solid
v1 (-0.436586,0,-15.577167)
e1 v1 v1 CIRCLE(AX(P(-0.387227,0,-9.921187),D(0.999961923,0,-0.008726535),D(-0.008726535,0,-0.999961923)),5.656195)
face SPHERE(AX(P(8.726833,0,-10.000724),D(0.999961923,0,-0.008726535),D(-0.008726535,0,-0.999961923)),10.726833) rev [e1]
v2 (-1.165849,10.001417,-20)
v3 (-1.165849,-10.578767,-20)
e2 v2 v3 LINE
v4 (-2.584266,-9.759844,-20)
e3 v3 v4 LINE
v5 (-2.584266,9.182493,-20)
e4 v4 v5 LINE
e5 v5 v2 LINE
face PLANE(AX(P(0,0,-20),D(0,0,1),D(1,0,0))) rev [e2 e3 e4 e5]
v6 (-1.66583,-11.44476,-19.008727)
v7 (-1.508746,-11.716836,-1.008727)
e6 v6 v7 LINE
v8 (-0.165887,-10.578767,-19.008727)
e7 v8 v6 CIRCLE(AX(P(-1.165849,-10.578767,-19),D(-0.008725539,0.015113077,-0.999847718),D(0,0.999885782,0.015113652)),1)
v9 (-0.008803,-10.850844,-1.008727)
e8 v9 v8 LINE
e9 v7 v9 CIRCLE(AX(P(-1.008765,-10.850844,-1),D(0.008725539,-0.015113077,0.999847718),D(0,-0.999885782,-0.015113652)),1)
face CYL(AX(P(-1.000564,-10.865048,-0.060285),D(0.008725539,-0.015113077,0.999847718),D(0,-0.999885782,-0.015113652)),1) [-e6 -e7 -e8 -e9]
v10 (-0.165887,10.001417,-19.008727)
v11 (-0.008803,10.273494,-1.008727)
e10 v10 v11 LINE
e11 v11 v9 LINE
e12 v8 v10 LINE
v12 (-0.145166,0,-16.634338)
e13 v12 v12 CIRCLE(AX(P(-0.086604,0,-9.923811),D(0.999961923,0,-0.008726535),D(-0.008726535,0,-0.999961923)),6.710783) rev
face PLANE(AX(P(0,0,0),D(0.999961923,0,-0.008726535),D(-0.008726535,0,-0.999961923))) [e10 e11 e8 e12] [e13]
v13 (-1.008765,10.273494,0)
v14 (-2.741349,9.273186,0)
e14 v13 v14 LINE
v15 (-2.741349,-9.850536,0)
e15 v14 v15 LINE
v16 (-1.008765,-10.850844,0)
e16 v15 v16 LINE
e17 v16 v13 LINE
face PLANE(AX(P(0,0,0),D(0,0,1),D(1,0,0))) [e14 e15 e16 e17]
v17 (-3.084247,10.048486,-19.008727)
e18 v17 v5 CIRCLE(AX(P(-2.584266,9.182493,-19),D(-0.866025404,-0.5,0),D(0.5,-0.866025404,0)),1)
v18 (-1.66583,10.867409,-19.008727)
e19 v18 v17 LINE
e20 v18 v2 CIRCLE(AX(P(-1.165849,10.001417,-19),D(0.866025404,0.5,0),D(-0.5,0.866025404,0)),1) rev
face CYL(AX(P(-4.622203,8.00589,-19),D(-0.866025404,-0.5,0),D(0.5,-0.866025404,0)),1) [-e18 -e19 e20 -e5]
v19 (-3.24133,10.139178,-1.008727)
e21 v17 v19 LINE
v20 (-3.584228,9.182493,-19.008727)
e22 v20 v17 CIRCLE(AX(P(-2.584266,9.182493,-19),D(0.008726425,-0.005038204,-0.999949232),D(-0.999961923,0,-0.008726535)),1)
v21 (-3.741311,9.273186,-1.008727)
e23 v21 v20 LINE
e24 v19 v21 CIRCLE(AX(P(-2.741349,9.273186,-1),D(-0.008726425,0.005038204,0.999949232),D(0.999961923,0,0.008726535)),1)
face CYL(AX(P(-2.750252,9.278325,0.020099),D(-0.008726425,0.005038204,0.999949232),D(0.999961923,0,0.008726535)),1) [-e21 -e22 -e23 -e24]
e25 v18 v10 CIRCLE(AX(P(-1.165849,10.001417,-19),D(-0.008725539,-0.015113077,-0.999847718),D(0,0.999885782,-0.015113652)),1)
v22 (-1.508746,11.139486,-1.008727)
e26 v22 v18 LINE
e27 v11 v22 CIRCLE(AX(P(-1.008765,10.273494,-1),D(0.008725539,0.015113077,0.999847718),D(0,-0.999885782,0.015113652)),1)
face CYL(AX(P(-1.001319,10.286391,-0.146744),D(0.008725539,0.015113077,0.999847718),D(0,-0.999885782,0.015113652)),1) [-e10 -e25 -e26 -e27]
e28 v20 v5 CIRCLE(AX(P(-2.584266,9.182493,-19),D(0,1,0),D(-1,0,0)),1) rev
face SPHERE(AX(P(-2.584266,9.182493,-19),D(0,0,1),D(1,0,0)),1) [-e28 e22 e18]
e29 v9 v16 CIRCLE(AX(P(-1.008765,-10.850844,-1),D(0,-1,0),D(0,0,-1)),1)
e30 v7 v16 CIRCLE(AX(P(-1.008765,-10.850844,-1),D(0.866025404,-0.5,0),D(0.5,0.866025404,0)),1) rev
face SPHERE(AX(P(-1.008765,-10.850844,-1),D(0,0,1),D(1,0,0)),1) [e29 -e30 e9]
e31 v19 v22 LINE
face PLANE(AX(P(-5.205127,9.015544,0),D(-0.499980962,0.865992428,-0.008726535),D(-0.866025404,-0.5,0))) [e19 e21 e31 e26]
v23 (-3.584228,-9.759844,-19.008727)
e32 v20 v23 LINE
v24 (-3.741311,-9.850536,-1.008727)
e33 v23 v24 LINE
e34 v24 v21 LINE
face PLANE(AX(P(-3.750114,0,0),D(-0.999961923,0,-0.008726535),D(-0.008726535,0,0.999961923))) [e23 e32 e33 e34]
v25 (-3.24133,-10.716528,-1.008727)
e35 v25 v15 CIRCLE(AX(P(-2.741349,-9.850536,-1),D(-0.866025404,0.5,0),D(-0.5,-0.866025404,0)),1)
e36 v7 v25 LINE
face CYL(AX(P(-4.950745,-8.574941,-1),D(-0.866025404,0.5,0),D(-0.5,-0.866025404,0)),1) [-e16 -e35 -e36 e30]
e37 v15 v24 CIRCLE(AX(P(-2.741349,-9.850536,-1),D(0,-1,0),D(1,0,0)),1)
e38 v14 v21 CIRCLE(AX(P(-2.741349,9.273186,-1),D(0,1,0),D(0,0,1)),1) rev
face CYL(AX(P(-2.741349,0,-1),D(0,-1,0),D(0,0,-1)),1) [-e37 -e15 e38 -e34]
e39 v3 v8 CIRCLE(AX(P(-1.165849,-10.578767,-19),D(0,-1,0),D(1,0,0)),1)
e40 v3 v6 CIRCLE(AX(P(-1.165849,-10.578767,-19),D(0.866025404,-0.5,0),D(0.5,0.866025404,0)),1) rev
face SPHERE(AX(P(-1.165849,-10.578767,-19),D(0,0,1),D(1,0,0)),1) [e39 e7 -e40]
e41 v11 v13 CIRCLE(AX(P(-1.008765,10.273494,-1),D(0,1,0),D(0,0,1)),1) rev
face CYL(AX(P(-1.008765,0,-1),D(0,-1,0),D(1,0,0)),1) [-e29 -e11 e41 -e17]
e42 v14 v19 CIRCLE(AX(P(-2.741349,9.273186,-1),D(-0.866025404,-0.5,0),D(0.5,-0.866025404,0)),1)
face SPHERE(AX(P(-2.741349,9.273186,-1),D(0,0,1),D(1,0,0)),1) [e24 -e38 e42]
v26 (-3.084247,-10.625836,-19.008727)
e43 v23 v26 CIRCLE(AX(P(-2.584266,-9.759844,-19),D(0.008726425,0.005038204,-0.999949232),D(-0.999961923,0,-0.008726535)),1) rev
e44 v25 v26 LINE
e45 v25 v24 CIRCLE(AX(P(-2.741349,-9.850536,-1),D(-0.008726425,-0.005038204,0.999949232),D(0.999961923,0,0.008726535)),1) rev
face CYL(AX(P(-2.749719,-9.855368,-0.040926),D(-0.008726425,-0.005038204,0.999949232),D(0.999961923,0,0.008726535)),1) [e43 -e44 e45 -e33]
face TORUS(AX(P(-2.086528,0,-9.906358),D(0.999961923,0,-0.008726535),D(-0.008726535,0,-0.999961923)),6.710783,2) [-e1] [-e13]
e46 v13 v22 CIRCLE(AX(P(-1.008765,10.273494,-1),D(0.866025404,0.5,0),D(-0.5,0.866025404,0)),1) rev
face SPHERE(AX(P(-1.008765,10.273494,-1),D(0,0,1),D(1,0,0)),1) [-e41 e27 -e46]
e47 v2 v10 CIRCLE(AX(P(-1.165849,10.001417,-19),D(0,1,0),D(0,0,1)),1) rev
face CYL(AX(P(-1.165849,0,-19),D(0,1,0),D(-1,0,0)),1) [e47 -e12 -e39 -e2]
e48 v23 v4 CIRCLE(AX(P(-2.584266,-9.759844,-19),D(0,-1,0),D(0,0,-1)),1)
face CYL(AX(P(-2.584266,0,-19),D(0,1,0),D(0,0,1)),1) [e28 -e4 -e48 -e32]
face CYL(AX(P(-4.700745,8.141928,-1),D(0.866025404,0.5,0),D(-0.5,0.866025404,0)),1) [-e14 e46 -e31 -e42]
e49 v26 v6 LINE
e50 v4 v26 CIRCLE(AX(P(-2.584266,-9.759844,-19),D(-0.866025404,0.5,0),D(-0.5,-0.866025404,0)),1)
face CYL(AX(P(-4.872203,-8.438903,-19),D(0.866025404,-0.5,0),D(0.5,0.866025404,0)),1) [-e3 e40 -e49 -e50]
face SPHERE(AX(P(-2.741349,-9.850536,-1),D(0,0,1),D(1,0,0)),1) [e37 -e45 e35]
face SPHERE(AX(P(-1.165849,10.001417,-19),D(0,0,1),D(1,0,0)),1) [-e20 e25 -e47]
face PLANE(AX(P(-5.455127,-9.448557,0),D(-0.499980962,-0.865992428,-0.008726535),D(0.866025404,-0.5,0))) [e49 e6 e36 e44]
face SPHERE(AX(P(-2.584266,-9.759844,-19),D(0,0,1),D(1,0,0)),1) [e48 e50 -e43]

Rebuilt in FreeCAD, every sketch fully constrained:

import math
import FreeCAD as App
import Part
import Sketcher
from FreeCAD import Vector
Q = App.Units.Quantity


def edges_at(feature, points):
    """Names of the edges that pass closest to the given points."""
    edges = feature.Shape.Edges
    near = lambda p: min(range(len(edges)), key=lambda i: edges[i].distToShape(Part.Vertex(*p))[0])
    return sorted({f"Edge{near(p) + 1}" for p in points})


def faces_at(feature, points):
    """Names of the faces that lie closest to the given points."""
    faces = feature.Shape.Faces
    near = lambda p: min(range(len(faces)), key=lambda i: faces[i].distToShape(Part.Vertex(*p))[0])
    return sorted({f"Face{near(p) + 1}" for p in points})


def add_polygon(sketch, points):
    """Adds a closed chain of lines whose ends are joined by coincident constraints."""
    first, n = sketch.GeometryCount, len(points)
    for a, b in zip(points, points[1:] + points[:1]):
        sketch.addGeometry(Part.LineSegment(App.Vector(*a, 0), App.Vector(*b, 0)), False)
    for i in range(n):
        sketch.addConstraint(Sketcher.Constraint("Coincident", first + i, 2, first + (i + 1) % n, 1))

doc = App.newDocument("Part")
body = doc.addObject("PartDesign::Body", "Body")

# Sketch on XY plane
sketch1 = doc.addObject("Sketcher::SketchObject", "Sketch")
body.addObject(sketch1)
sketch1.AttachmentSupport = (doc.XY_Plane, [""])
sketch1.MapMode = "FlatFace"
add_polygon(sketch1, [(0, 12.020726), (-3.750114, 9.855596), (-3.750114, -10.432947), (0, -12.598076)])  # lines 0-3
sketch1.addConstraint([
    Sketcher.Constraint("Vertical", 1),
    Sketcher.Constraint("Vertical", 3),
    Sketcher.Constraint("PointOnObject", 2, 2, -2),
    Sketcher.Constraint("Equal", 0, 2),
    Sketcher.Constraint("Angle", 0, Q("-150 deg")),
    Sketcher.Constraint("Distance", 0, Q("4.330259 mm")),
    Sketcher.Constraint("DistanceY", 1, 2, 1, 1, Q("20.288543 mm")),
    Sketcher.Constraint("DistanceY", -1, 1, 0, 2, Q("9.855596 mm")),
])
pad1 = doc.addObject("PartDesign::Pad", "Pad")
body.addObject(pad1)
pad1.Profile = sketch1
pad1.Length = 20
pad1.Reversed = True
doc.recompute()

draft = doc.addObject("PartDesign::Draft", "Draft")
body.addObject(draft)
draft.Base = (pad1, faces_at(pad1, [
    (-1.875, 10.938, -10),
    (-3.75, -0.289, -10),
    (-1.875, -11.516, -10),
    (0, -0.289, -10),
]))
draft.NeutralPlane = (doc.XY_Plane, [""])
draft.Angle = 0.5
draft.Reversed = True
doc.recompute()

fillet = doc.addObject("PartDesign::Fillet", "Fillet")
body.addObject(fillet)
fillet.Base = (draft, ["Edge1"])
fillet.UseAllEdges = True
fillet.Radius = 1

# Sketch on XZ plane
sketch2 = doc.addObject("Sketcher::SketchObject", "Sketch001")
body.addObject(sketch2)
sketch2.AttachmentSupport = (doc.XZ_Plane, [""])
sketch2.MapMode = "FlatFace"
sketch2.addGeometry([
    Part.ArcOfCircle(Part.Circle(Vector(8.726833, -10.000724, 0), Vector(0, 0, 1), 10.726833), math.radians(0), math.radians(90)),
    Part.ArcOfCircle(Part.Circle(Vector(8.726833, -10.000724, 0), Vector(0, 0, 1), 10.726833), math.radians(-90), math.radians(0)),
    Part.LineSegment(Vector(8.726833, -20.727558, 0), Vector(8.726833, 0.726109, 0)),
], False)
sketch2.addGeometry(Part.LineSegment(Vector(8.726833, -20.727558, 0), Vector(8.726833, 0.726109, 0)), True)  # axis
sketch2.addConstraint([
    Sketcher.Constraint("Tangent", 0, 1, 1, 2),
    Sketcher.Constraint("Coincident", 1, 1, 2, 1),
    Sketcher.Constraint("Coincident", 2, 2, 0, 2),
    Sketcher.Constraint("Vertical", 2),
    Sketcher.Constraint("Vertical", 3),
    Sketcher.Constraint("Coincident", 3, 1, 1, 1),
    Sketcher.Constraint("Equal", 0, 1),
    Sketcher.Constraint("Horizontal", 1, 3, 0, 1),
    Sketcher.Constraint("Vertical", 0, 3, 1, 1),
    Sketcher.Constraint("Equal", 2, 3),
    Sketcher.Constraint("Radius", 0, Q("10.726833 mm")),
    Sketcher.Constraint("DistanceY", -1, 1, 2, 2, Q("0.726109 mm")),
    Sketcher.Constraint("DistanceX", -1, 1, 0, 3, Q("8.726833 mm")),
])
groove = doc.addObject("PartDesign::Groove", "Groove")
body.addObject(groove)
groove.Profile = sketch2
groove.ReferenceAxis = (sketch2, ["Axis0"])
groove.Angle = 360
doc.recompute()

fillet2 = doc.addObject("PartDesign::Fillet", "Fillet001")
body.addObject(fillet2)
fillet2.Base = (groove, edges_at(groove, [(-0.14, 0, -16.038)]))
fillet2.Radius = 2

doc.recompute()
